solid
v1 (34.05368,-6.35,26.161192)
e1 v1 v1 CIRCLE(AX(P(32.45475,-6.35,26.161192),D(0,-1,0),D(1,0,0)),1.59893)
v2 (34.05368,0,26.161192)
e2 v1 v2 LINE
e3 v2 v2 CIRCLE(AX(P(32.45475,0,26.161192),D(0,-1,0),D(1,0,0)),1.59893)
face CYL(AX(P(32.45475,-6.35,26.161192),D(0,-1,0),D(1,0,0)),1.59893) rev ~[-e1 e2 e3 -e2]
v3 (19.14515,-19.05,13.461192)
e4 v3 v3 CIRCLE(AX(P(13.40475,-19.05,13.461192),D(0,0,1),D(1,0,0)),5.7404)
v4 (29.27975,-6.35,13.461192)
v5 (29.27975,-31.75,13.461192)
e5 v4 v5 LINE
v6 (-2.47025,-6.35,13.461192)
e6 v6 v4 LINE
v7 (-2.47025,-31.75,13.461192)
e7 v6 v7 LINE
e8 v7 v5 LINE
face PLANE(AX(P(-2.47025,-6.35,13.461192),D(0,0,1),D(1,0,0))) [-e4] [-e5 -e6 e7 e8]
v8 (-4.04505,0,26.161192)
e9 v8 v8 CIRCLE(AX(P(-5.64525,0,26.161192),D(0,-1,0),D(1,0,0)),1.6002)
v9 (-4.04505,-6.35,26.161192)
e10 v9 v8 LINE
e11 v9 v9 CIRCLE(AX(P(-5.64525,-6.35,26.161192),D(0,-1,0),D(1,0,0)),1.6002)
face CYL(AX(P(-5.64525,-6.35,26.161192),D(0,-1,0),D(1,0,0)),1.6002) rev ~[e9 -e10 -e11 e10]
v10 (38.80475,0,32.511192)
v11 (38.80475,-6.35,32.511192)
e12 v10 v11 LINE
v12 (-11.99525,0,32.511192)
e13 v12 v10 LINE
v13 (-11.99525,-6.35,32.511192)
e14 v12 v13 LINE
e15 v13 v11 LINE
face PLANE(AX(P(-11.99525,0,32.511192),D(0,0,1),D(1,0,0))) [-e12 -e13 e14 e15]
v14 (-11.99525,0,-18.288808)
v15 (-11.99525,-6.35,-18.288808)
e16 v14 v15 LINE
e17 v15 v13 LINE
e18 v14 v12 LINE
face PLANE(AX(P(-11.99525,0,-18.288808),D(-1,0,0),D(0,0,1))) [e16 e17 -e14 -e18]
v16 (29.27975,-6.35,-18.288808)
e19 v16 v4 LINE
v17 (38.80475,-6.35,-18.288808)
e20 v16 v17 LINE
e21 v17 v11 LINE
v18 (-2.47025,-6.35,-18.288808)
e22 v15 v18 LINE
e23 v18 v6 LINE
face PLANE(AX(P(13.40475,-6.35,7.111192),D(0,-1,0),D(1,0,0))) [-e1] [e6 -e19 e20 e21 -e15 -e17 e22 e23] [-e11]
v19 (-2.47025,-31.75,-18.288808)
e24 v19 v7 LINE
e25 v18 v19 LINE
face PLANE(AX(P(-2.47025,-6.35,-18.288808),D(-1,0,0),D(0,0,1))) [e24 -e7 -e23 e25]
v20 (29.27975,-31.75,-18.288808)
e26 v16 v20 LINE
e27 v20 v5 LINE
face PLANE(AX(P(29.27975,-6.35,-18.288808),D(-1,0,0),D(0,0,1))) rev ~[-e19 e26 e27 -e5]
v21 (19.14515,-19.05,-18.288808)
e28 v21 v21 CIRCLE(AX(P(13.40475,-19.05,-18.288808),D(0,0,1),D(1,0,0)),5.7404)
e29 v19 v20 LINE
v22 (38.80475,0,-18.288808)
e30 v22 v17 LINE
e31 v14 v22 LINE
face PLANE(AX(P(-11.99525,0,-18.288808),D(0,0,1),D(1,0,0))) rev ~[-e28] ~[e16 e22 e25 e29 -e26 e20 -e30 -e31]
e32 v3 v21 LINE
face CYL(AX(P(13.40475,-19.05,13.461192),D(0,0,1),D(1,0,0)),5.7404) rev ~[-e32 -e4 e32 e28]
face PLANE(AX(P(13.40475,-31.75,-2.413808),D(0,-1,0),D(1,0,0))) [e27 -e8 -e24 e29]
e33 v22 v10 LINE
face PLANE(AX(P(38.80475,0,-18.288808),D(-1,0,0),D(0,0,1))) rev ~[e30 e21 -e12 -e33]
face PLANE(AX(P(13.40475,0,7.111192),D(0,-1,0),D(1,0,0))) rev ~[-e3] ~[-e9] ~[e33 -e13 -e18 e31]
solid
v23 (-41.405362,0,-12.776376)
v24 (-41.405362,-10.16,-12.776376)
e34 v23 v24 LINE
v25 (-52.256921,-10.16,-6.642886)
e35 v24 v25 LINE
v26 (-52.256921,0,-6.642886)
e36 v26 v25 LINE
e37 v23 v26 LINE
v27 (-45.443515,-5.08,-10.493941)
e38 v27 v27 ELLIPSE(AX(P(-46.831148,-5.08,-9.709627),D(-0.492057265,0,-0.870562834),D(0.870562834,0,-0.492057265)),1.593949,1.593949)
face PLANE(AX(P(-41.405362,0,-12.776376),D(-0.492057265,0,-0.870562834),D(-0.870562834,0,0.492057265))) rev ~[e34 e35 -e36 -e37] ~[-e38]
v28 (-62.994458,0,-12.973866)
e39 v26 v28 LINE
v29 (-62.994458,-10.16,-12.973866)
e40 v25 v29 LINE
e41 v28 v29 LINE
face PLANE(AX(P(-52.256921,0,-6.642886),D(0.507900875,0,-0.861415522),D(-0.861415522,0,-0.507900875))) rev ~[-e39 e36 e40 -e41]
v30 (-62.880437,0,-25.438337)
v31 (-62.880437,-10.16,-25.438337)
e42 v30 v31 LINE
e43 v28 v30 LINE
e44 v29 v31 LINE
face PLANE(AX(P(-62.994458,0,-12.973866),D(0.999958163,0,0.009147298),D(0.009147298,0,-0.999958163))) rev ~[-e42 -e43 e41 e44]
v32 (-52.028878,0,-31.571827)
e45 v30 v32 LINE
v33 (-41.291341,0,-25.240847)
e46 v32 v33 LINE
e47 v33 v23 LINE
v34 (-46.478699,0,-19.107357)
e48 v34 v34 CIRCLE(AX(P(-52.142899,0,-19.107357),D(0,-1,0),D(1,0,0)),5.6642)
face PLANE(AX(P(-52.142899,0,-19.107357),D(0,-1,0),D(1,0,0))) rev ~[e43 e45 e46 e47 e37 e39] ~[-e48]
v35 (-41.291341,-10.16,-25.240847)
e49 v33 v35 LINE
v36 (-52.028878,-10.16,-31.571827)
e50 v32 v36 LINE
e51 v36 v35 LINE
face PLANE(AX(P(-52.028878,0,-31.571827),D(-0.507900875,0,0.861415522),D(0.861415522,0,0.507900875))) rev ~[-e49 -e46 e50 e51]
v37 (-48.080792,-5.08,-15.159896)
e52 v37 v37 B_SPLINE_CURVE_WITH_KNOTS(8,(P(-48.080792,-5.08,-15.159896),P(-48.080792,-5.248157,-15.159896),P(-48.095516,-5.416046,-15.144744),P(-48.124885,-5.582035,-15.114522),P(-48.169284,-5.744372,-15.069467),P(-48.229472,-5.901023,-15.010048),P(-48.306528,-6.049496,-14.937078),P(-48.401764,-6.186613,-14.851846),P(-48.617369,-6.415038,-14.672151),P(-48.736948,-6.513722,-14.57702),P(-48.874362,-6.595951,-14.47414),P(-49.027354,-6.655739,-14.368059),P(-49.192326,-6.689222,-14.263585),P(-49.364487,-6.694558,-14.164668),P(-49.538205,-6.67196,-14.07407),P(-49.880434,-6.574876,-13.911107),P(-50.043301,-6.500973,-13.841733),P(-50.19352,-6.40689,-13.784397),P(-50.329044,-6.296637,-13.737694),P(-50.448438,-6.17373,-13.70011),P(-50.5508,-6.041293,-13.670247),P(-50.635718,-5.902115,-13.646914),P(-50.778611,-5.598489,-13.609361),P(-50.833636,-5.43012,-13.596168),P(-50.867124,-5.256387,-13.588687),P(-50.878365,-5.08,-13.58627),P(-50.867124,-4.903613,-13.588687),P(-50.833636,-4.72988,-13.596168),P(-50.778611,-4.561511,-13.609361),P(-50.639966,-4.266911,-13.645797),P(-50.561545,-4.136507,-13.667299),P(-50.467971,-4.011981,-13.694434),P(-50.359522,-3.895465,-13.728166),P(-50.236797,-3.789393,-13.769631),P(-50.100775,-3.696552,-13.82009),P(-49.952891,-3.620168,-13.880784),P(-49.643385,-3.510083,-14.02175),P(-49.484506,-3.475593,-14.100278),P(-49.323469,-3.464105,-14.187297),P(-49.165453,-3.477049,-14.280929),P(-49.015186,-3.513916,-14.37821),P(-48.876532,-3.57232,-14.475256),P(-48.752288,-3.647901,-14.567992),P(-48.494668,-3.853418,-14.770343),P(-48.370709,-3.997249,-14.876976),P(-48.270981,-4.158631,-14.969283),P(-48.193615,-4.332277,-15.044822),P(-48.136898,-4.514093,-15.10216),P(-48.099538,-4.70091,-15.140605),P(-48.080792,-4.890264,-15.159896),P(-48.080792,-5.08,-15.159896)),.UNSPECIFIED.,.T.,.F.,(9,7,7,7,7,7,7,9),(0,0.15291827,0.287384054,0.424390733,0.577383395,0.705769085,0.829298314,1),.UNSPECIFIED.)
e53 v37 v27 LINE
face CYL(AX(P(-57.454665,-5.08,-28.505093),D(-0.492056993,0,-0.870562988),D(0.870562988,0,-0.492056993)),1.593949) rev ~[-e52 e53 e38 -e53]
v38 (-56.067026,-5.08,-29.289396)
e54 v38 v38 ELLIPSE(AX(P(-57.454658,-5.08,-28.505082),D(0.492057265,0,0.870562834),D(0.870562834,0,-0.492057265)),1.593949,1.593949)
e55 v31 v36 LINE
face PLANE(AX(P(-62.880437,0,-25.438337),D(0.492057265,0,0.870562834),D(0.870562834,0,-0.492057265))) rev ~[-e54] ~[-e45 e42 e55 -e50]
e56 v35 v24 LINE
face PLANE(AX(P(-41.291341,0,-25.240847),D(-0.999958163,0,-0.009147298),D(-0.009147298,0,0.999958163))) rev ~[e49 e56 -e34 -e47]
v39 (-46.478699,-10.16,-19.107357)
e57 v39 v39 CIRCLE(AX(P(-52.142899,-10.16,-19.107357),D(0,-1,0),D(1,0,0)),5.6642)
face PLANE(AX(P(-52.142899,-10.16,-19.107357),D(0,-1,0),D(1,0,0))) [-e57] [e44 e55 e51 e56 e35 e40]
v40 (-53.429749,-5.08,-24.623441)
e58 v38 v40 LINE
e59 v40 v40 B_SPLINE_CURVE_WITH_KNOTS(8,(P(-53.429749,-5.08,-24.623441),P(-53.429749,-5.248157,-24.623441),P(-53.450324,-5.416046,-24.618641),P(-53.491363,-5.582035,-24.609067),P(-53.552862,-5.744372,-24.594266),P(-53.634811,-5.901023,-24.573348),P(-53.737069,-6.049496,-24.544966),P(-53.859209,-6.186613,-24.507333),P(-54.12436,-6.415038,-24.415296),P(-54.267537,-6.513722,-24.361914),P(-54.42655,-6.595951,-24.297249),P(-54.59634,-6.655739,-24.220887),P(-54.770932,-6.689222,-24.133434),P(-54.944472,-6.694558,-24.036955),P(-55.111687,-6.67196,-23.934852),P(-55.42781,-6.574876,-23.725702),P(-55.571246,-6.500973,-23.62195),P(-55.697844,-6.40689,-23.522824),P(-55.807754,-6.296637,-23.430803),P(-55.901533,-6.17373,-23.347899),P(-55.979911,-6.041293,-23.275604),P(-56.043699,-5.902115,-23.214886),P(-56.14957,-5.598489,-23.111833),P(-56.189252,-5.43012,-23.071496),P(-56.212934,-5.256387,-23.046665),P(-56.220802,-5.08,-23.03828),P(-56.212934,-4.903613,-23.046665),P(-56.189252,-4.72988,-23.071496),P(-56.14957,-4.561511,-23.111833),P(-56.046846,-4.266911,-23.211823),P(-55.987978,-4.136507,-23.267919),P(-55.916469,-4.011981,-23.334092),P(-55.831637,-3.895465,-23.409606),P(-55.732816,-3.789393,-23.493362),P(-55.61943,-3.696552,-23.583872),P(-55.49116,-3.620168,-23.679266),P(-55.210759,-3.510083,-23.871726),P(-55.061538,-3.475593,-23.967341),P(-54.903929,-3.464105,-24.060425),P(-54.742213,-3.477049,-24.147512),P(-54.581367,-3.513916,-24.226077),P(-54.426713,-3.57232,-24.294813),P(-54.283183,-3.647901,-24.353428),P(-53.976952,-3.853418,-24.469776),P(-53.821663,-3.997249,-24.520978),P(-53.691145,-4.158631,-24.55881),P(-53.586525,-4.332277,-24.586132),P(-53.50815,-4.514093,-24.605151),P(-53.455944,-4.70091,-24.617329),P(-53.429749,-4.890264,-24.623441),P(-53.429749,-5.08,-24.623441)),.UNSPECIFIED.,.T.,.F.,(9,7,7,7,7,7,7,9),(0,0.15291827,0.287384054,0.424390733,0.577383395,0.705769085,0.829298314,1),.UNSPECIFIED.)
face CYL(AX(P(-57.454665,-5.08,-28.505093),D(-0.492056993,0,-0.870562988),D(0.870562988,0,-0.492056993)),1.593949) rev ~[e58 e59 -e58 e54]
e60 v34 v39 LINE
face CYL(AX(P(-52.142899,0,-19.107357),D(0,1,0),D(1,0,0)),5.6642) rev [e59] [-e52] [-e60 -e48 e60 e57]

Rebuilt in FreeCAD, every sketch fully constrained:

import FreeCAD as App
import Part
import Sketcher
Q = App.Units.Quantity

doc = App.newDocument("Part")
params = doc.addObject("Spreadsheet::Sheet", "Params")
for row, (alias, value) in enumerate([
    ("sketch1_width", "2 in"),
    ("pad1_length", "0.25 in"),
    ("sketch2_width", "1.25 in"),
    ("pad2_length", "1 in"),
    ("sketch3_diameter", "0.452 in"),
    ("pocket1_length", "1.3 in"),
    ("sketch4_diameter", "0.126 in"),
    ("pocket2_length", "0.26 in"),
    ("sketch5_diameter", "0.446 in"),
    ("pad3_length", "0.4 in"),
    ("pocket3_length", "0.9 in"),
], start=1):
    params.set(f"A{row}", alias)
    params.set(f"B{row}", "=" + value)
    params.setAlias(f"B{row}", alias)

body = doc.addObject("PartDesign::Body", "Body")

sketch1 = body.newObject("Sketcher::SketchObject", "Sketch")
sketch1.AttachmentSupport = (doc.getObject("XZ_Plane"), [""])
sketch1.MapMode = "FlatFace"
sketch1.addGeometry([
    Part.LineSegment(App.Vector(-12, 33, 0), App.Vector(-12, -18, 0)),
    Part.LineSegment(App.Vector(-12, -18, 0), App.Vector(39, -18, 0)),
    Part.LineSegment(App.Vector(39, -18, 0), App.Vector(39, 33, 0)),
    Part.LineSegment(App.Vector(39, 33, 0), App.Vector(-12, 33, 0)),
], False)
sketch1.addConstraint([
    Sketcher.Constraint("Coincident", 0, 2, 1, 1),
    Sketcher.Constraint("Coincident", 1, 2, 2, 1),
    Sketcher.Constraint("Coincident", 2, 2, 3, 1),
    Sketcher.Constraint("Coincident", 3, 2, 0, 1),
    Sketcher.Constraint("Vertical", 0),
    Sketcher.Constraint("Horizontal", 1),
    Sketcher.Constraint("Vertical", 2),
    Sketcher.Constraint("Horizontal", 3),
    Sketcher.Constraint("Equal", 3, 0),
    Sketcher.Constraint("DistanceX", 1, 1, 1, 2, Q("2 in")),
    Sketcher.Constraint("DistanceX", 0, 2, -1, 1, 11.99525),
    Sketcher.Constraint("DistanceY", 0, 2, -1, 1, 18.288808),
])
sketch1.setExpression("Constraints[9]", "Params.sketch1_width")
pad1 = body.newObject("PartDesign::Pad", "Pad")
pad1.Profile = sketch1
pad1.setExpression("Length", "Params.pad1_length")

sketch2 = body.newObject("Sketcher::SketchObject", "Sketch001")
sketch2.AttachmentSupport = (doc.getObject("XZ_Plane"), [""])
sketch2.MapMode = "FlatFace"
sketch2.AttachmentOffset = App.Placement(App.Vector(0, 0, 0.25 * 25.4), App.Rotation())
sketch2.addGeometry([
    Part.LineSegment(App.Vector(-2, 13, 0), App.Vector(-2, -18, 0)),
    Part.LineSegment(App.Vector(-2, -18, 0), App.Vector(29, -18, 0)),
    Part.LineSegment(App.Vector(29, -18, 0), App.Vector(29, 13, 0)),
    Part.LineSegment(App.Vector(29, 13, 0), App.Vector(-2, 13, 0)),
], False)
sketch2.addConstraint([
    Sketcher.Constraint("Coincident", 0, 2, 1, 1),
    Sketcher.Constraint("Coincident", 1, 2, 2, 1),
    Sketcher.Constraint("Coincident", 2, 2, 3, 1),
    Sketcher.Constraint("Coincident", 3, 2, 0, 1),
    Sketcher.Constraint("Vertical", 0),
    Sketcher.Constraint("Horizontal", 1),
    Sketcher.Constraint("Vertical", 2),
    Sketcher.Constraint("Horizontal", 3),
    Sketcher.Constraint("Equal", 3, 0),
    Sketcher.Constraint("DistanceX", 1, 1, 1, 2, Q("1.25 in")),
    Sketcher.Constraint("DistanceX", 0, 2, -1, 1, 2.47025),
    Sketcher.Constraint("DistanceY", 0, 2, -1, 1, 18.288808),
])
sketch2.setExpression("Constraints[9]", "Params.sketch2_width")
pad2 = body.newObject("PartDesign::Pad", "Pad001")
pad2.Profile = sketch2
pad2.setExpression("Length", "Params.pad2_length")

sketch3 = body.newObject("Sketcher::SketchObject", "Sketch002")
sketch3.AttachmentSupport = (doc.getObject("XY_Plane"), [""])
sketch3.MapMode = "FlatFace"
sketch3.AttachmentOffset = App.Placement(App.Vector(0, 0, 13.461192), App.Rotation())
sketch3.addGeometry(Part.Circle(App.Vector(13, -19, 0), App.Vector(0, 0, 1), 6), False)
sketch3.addConstraint([
    Sketcher.Constraint("Diameter", 0, Q("0.452 in")),
    Sketcher.Constraint("DistanceY", 0, 3, -1, 1, Q("0.75 in")),
    Sketcher.Constraint("DistanceX", -1, 1, 0, 3, 13.40475),
])
sketch3.setExpression("Constraints[0]", "Params.sketch3_diameter")
pocket1 = body.newObject("PartDesign::Pocket", "Pocket")
pocket1.Profile = sketch3
pocket1.setExpression("Length", "Params.pocket1_length")

sketch4 = body.newObject("Sketcher::SketchObject", "Sketch003")
sketch4.AttachmentSupport = (doc.getObject("XZ_Plane"), [""])
sketch4.MapMode = "FlatFace"
sketch4.AttachmentOffset = App.Placement(App.Vector(0, 0, 0.25 * 25.4), App.Rotation())
sketch4.addGeometry([
    Part.Circle(App.Vector(-5.6, 26.2, 0), App.Vector(0, 0, 1), 1.6),
    Part.Circle(App.Vector(32.5, 26.2, 0), App.Vector(0, 0, 1), 1.6),
], False)
sketch4.addConstraint([
    Sketcher.Constraint("Horizontal", 0, 3, 1, 3),
    Sketcher.Constraint("Diameter", 0, Q("0.126 in")),
    Sketcher.Constraint("Diameter", 1, Q("0.1259 in")),
    Sketcher.Constraint("DistanceX", 0, 3, 1, 3, Q("1.5 in")),
    Sketcher.Constraint("DistanceX", 0, 3, -1, 1, 5.64525),
    Sketcher.Constraint("DistanceY", -1, 1, 0, 3, 26.161192),
])
sketch4.setExpression("Constraints[1]", "Params.sketch4_diameter")
pocket2 = body.newObject("PartDesign::Pocket", "Pocket001")
pocket2.Profile = sketch4
pocket2.setExpression("Length", "Params.pocket2_length")
body2 = doc.addObject("PartDesign::Body", "Body001")

sketch5 = body2.newObject("Sketcher::SketchObject", "Sketch004")
sketch5.AttachmentSupport = (doc.getObject("XZ_Plane001"), [""])
sketch5.MapMode = "FlatFace"
sketch5.addGeometry([
    Part.LineSegment(App.Vector(-41, -13, 0), App.Vector(-52, -7, 0)),
    Part.LineSegment(App.Vector(-52, -7, 0), App.Vector(-63, -13, 0)),
    Part.LineSegment(App.Vector(-63, -13, 0), App.Vector(-63, -25, 0)),
    Part.LineSegment(App.Vector(-63, -25, 0), App.Vector(-52, -32, 0)),
    Part.LineSegment(App.Vector(-52, -32, 0), App.Vector(-41, -25, 0)),
    Part.LineSegment(App.Vector(-41, -25, 0), App.Vector(-41, -13, 0)),
    Part.Circle(App.Vector(-52, -19, 0), App.Vector(0, 0, 1), 6),
], False)
sketch5.addConstraint([
    Sketcher.Constraint("Coincident", 0, 2, 1, 1),
    Sketcher.Constraint("Coincident", 1, 2, 2, 1),
    Sketcher.Constraint("Coincident", 2, 2, 3, 1),
    Sketcher.Constraint("Coincident", 3, 2, 4, 1),
    Sketcher.Constraint("Coincident", 4, 2, 5, 1),
    Sketcher.Constraint("Coincident", 5, 2, 0, 1),
    Sketcher.Constraint("Parallel", 0, 3),
    Sketcher.Constraint("Parallel", 1, 4),
    Sketcher.Constraint("Parallel", 2, 5),
    Sketcher.Constraint("Equal", 0, 1),
    Sketcher.Constraint("Equal", 1, 2),
    Sketcher.Constraint("Equal", 2, 3),
    Sketcher.Constraint("Diameter", 6, Q("0.446 in")),
    Sketcher.Constraint("DistanceX", 6, 3, -1, 1, 52.142899),
    Sketcher.Constraint("Distance", 1, 12.464991),
    Sketcher.Constraint("DistanceX", 0, 2, -1, 1, 52.256921),
    Sketcher.Constraint("DistanceX", 1, 2, -1, 1, 62.994458),
    Sketcher.Constraint("DistanceX", 4, 2, -1, 1, 41.291341),
    Sketcher.Constraint("DistanceX", 5, 2, -1, 1, 41.405362),
    Sketcher.Constraint("DistanceY", 6, 3, 0, 2, 12.464471),
    Sketcher.Constraint("DistanceY", 6, 3, -1, 1, 19.107357),
])
sketch5.setExpression("Constraints[12]", "Params.sketch5_diameter")
pad3 = body2.newObject("PartDesign::Pad", "Pad002")
pad3.Profile = sketch5
pad3.setExpression("Length", "Params.pad3_length")

sketch6 = body2.newObject("Sketcher::SketchObject", "Sketch005")
sketch6.Placement = App.Placement(App.Vector(-26.121574, 0, -46.215088), App.Rotation(App.Vector(0.870562988, 0, -0.492056993), App.Vector(0, -1, 0), App.Vector(-0.492056993, 0, -0.870562988), "ZXY"))
sketch6.addGeometry(Part.Circle(App.Vector(-36, 5.1, 0), App.Vector(0, 0, 1), 1.6), False)
sketch6.addConstraint([
    Sketcher.Constraint("DistanceY", -1, 1, 0, 3, Q("0.2 in")),
    Sketcher.Constraint("Diameter", 0, 3.187898),
    Sketcher.Constraint("DistanceX", 0, 3, -1, 1, 35.991756),
])
pocket3 = body2.newObject("PartDesign::Pocket", "Pocket002")
pocket3.Profile = sketch6
pocket3.setExpression("Length", "Params.pocket3_length")

doc.recompute()
